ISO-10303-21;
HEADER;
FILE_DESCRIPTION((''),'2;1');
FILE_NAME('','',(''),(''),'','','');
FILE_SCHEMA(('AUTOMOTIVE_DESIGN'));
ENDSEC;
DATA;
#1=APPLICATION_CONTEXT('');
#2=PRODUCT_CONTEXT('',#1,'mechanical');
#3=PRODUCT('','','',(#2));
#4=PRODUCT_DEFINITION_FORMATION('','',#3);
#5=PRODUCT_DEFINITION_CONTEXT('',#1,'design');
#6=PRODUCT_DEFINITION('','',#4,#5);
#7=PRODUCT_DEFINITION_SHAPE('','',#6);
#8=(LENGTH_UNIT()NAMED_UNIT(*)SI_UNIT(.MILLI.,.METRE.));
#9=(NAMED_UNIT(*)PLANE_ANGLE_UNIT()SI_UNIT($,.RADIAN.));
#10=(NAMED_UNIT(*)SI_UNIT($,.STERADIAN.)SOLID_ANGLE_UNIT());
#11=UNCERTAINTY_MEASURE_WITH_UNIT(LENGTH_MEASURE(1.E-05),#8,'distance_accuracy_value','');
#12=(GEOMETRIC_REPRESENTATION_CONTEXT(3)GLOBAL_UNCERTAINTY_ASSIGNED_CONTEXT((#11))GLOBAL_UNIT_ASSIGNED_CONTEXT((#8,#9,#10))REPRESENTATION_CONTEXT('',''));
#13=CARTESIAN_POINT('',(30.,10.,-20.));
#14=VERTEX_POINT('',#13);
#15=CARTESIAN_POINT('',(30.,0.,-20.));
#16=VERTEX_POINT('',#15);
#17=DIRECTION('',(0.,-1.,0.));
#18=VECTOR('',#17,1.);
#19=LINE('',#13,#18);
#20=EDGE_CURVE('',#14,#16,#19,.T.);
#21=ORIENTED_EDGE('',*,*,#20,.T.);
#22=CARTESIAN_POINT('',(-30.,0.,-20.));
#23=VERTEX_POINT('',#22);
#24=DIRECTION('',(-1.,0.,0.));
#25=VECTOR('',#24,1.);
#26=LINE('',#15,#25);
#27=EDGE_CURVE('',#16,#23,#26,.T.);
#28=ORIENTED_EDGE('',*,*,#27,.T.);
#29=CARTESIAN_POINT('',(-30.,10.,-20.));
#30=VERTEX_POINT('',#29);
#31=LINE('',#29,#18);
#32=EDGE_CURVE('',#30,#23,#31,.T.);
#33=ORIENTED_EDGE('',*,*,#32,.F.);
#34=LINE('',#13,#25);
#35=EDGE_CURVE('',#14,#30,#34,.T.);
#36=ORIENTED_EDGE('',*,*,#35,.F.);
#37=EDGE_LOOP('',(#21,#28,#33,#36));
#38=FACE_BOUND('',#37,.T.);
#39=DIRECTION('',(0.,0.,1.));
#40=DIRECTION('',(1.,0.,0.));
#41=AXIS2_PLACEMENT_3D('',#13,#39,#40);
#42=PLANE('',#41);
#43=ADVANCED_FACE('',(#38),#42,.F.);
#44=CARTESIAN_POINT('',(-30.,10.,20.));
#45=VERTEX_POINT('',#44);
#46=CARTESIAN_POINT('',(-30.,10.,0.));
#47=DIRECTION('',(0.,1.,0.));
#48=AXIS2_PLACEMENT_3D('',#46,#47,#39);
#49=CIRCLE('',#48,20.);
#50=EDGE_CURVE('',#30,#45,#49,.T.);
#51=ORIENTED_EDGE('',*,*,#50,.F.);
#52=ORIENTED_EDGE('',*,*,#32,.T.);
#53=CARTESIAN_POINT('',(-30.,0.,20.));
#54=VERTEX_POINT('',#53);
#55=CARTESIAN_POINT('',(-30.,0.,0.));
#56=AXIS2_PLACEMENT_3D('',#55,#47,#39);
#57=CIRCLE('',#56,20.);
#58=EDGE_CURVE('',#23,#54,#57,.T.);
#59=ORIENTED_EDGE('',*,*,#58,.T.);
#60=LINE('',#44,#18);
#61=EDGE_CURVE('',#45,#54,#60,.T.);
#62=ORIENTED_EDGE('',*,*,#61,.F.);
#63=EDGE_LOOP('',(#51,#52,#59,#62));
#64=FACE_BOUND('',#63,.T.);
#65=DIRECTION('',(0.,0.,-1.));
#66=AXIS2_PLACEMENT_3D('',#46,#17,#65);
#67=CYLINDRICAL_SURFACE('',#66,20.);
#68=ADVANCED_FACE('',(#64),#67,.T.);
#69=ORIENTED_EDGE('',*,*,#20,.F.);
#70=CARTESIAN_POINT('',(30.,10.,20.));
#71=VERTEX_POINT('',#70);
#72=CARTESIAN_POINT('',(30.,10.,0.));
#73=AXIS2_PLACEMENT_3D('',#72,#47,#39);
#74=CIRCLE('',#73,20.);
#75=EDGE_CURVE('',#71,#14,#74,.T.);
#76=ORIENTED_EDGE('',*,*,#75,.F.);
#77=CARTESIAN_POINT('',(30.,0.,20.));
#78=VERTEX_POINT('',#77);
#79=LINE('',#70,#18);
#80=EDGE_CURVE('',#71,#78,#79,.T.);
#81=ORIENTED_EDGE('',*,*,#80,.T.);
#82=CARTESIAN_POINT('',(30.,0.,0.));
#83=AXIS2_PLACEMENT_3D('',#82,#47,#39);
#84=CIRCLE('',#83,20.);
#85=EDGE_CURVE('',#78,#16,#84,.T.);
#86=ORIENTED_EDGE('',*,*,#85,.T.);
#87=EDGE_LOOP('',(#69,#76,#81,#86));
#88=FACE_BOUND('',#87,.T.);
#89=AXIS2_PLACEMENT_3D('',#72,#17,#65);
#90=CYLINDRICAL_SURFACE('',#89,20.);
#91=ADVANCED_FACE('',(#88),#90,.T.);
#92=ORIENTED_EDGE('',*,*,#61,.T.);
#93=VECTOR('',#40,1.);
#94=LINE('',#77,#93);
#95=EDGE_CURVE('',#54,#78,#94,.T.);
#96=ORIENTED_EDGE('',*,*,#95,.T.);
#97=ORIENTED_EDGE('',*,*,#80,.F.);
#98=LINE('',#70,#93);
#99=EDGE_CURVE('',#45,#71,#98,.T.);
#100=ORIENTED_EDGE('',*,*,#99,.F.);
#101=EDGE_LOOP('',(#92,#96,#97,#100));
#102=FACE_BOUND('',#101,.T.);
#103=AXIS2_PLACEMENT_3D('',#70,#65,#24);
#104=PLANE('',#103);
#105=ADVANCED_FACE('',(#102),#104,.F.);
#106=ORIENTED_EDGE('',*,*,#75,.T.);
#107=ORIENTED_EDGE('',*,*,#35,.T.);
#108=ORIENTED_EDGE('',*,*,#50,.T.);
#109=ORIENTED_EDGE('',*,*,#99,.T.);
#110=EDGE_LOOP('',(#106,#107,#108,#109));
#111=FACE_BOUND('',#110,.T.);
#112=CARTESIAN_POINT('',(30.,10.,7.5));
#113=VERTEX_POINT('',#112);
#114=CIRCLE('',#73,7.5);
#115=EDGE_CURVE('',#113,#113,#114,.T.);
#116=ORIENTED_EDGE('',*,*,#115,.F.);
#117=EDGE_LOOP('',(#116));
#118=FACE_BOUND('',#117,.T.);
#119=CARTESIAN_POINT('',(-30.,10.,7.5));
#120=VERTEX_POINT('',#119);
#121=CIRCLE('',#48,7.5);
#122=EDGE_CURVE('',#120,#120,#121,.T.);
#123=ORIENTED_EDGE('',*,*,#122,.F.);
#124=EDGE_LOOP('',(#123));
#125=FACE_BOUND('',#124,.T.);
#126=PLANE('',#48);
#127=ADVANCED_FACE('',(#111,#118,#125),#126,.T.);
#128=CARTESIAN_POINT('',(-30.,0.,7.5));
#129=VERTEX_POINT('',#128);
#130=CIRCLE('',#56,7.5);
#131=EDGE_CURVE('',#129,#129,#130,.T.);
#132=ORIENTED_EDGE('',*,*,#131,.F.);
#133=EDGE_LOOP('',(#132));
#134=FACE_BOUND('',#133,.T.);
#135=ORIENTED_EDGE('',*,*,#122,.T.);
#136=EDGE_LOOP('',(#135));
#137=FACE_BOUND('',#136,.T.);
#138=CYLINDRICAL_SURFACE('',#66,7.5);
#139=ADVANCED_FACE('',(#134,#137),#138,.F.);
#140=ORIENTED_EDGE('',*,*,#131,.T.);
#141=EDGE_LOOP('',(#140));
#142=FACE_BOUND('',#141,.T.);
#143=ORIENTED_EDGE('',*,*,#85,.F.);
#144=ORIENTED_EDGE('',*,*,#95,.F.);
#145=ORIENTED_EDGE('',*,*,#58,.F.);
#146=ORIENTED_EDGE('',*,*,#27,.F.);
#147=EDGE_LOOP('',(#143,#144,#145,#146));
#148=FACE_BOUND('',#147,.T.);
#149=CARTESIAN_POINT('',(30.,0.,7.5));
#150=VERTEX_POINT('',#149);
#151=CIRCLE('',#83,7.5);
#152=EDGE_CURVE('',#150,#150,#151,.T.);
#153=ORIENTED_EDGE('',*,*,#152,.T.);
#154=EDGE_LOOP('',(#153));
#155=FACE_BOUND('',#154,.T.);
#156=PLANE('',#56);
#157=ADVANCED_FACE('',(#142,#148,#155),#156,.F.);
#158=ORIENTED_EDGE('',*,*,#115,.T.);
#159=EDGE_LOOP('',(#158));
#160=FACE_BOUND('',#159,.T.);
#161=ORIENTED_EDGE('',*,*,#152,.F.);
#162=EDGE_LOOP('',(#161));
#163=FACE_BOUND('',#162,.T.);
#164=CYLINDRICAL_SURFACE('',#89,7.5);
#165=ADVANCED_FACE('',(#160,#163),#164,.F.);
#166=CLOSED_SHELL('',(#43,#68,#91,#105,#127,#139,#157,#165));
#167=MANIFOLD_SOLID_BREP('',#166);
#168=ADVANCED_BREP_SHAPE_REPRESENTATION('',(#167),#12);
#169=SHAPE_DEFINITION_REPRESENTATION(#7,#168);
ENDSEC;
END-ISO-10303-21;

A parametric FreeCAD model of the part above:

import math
import FreeCAD as App
import Part
import Sketcher

V = App.Vector
Q = App.Units.Quantity

doc = App.newDocument("Part")
params = doc.addObject("Spreadsheet::Sheet", "Params")
for row, (alias, value) in enumerate([
    ("sketch1_diameter", "15 mm"),
    ("sketch1_radius", "20 mm"),
    ("sketch1_width", "60 mm"),
    ("pad1_length", "10 mm"),
], start=1):
    params.set(f"A{row}", alias)
    params.set(f"B{row}", "=" + value)
    params.setAlias(f"B{row}", alias)

body = doc.addObject("PartDesign::Body", "Body")

# Sketch on XZ plane
sketch1 = body.newObject("Sketcher::SketchObject", "Sketch")
sketch1.AttachmentSupport = (doc.getObject("XZ_Plane"), [""])
sketch1.MapMode = "FlatFace"
sketch1.addGeometry([
    Part.LineSegment(V(-30, 20, 0), V(30, 20, 0)),  # 0
    Part.ArcOfCircle(Part.Circle(V(30, 0, 0), V(0, 0, 1), 20), math.radians(-90), math.radians(90)),  # 1
    Part.LineSegment(V(30, -20, 0), V(-30, -20, 0)),  # 2
    Part.ArcOfCircle(Part.Circle(V(-30, 0, 0), V(0, 0, 1), 20), math.radians(90), math.radians(270)),  # 3
    Part.Circle(V(30, 0, 0), V(0, 0, 1), 7.5),  # 4
    Part.Circle(V(-30, 0, 0), V(0, 0, 1), 7.5),  # 5
], False)
sketch1.addConstraint([
    Sketcher.Constraint("Tangent", 0, 2, 1, 2),
    Sketcher.Constraint("Tangent", 1, 1, 2, 1),
    Sketcher.Constraint("Tangent", 2, 2, 3, 2),
    Sketcher.Constraint("Tangent", 3, 1, 0, 1),
    Sketcher.Constraint("Horizontal", 0),
    Sketcher.Constraint("Horizontal", 2),
    Sketcher.Constraint("Coincident", 4, 3, 1, 3),
    Sketcher.Constraint("Coincident", 5, 3, 3, 3),
    Sketcher.Constraint("Equal", 4, 5),
    Sketcher.Constraint("Symmetric", 1, 3, 3, 3, -1, 1),
    Sketcher.Constraint("Diameter", 4, Q("15 mm")),
    Sketcher.Constraint("Radius", 1, Q("20 mm")),
    Sketcher.Constraint("DistanceX", 0, 1, 0, 2, Q("60 mm")),
])
sketch1.setExpression("Constraints[10]", "Params.sketch1_diameter")
sketch1.setExpression("Constraints[11]", "Params.sketch1_radius")
sketch1.setExpression("Constraints[12]", "Params.sketch1_width")
pad1 = body.newObject("PartDesign::Pad", "Pad")
pad1.Profile = sketch1
pad1.setExpression("Length", "Params.pad1_length")
pad1.Reversed = True

doc.recompute()
